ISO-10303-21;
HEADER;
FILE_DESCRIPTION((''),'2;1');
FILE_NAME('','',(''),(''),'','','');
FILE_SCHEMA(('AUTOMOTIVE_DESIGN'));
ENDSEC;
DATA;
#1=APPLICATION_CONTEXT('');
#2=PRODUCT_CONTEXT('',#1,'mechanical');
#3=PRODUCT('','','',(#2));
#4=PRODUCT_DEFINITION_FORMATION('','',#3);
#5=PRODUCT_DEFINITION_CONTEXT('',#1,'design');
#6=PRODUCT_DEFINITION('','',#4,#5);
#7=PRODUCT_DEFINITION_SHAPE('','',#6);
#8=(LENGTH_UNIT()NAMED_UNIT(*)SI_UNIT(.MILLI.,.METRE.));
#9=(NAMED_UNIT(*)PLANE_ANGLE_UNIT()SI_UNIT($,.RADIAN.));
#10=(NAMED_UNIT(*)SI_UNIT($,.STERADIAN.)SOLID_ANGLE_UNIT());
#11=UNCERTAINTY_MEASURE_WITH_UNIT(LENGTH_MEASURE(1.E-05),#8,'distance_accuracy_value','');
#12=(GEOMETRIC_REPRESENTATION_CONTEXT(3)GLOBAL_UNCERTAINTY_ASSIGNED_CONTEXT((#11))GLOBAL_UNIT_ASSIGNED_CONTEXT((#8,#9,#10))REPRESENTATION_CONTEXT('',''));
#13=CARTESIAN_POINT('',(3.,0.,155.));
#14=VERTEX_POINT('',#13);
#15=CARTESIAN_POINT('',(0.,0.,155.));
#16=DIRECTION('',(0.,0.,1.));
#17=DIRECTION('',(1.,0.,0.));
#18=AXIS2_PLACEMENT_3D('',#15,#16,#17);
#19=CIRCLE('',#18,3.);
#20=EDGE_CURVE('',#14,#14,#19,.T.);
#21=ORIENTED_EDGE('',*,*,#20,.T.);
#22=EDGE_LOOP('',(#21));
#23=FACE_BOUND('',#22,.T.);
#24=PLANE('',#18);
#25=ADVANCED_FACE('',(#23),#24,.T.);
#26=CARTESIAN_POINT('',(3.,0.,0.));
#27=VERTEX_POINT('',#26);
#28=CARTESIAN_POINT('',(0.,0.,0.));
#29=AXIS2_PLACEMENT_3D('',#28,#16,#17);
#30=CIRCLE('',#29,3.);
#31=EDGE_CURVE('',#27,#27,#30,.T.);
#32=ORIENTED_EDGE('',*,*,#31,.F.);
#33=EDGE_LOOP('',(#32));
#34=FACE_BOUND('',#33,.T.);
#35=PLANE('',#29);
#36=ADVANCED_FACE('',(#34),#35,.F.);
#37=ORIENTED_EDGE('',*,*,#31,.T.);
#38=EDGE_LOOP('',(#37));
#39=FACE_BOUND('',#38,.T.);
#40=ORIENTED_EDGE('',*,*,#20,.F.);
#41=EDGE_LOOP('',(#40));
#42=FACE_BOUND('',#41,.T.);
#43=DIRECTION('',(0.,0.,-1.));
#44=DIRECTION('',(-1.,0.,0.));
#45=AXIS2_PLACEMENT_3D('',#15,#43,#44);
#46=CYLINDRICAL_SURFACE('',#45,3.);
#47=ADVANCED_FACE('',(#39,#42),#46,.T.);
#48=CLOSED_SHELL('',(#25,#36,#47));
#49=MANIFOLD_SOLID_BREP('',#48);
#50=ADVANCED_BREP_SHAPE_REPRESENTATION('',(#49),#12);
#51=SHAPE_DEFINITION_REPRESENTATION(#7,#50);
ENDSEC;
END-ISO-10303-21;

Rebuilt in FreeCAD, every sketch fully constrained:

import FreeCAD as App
import Part
import Sketcher
Q = App.Units.Quantity

doc = App.newDocument("Part")
params = doc.addObject("Spreadsheet::Sheet", "Params")
for row, (alias, value) in enumerate([
    ("sketch1_diameter", "6 mm"),
    ("pad1_length", "155 mm"),
], start=1):
    params.set(f"A{row}", alias)
    params.set(f"B{row}", "=" + value)
    params.setAlias(f"B{row}", alias)

body = doc.addObject("PartDesign::Body", "Body")

# Sketch on XY plane
sketch1 = doc.addObject("Sketcher::SketchObject", "Sketch")
body.addObject(sketch1)
sketch1.AttachmentSupport = (doc.XY_Plane, [""])
sketch1.MapMode = "FlatFace"
sketch1.addGeometry(Part.Circle(App.Vector(0, 0, 0), App.Vector(0, 0, 1), 3), False)
sketch1.addConstraint(Sketcher.Constraint("Coincident", 0, 3, -1, 1))
sketch1.addConstraint(Sketcher.Constraint("Diameter", 0, Q("6 mm")))
sketch1.setExpression("Constraints[1]", "Params.sketch1_diameter")
pad1 = doc.addObject("PartDesign::Pad", "Pad")
body.addObject(pad1)
pad1.Profile = sketch1
pad1.setExpression("Length", "Params.pad1_length")

doc.recompute()
